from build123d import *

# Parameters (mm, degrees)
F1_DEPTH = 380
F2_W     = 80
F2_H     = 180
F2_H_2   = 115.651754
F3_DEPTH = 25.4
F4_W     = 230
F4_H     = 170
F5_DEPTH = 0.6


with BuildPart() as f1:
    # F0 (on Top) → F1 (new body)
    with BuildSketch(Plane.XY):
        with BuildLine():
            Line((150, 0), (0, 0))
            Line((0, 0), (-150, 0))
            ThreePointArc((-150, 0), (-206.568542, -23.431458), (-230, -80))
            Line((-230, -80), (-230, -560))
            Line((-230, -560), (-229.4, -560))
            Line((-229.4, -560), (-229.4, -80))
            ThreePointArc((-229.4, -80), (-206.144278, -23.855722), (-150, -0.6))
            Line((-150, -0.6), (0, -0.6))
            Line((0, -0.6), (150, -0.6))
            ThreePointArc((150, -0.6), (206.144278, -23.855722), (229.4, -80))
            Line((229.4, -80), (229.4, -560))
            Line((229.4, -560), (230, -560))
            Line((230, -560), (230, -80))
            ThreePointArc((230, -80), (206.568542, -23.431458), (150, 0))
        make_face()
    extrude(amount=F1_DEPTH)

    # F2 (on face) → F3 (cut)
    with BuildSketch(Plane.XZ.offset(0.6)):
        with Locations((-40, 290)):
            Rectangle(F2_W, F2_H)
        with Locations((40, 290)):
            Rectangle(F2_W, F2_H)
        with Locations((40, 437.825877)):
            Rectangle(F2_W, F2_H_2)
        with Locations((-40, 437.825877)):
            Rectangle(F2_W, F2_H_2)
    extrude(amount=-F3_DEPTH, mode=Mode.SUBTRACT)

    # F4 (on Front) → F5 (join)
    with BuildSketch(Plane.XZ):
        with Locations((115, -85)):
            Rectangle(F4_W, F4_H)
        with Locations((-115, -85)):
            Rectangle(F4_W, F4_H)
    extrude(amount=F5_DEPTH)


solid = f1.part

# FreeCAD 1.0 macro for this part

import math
import FreeCAD as App
import Part
import Sketcher

V = App.Vector
Q = App.Units.Quantity


def add_polygon(sketch, points):
    """Adds a closed chain of lines whose ends are joined by coincident constraints."""
    first, n = sketch.GeometryCount, len(points)
    for a, b in zip(points, points[1:] + points[:1]):
        sketch.addGeometry(Part.LineSegment(App.Vector(*a, 0), App.Vector(*b, 0)), False)
    for i in range(n):
        sketch.addConstraint(Sketcher.Constraint("Coincident", first + i, 2, first + (i + 1) % n, 1))

doc = App.newDocument("Part")
body = doc.addObject("PartDesign::Body", "Body")

sketch1 = doc.addObject("Sketcher::SketchObject", "Sketch")
body.addObject(sketch1)
sketch1.AttachmentSupport = (doc.XY_Plane, [""])
sketch1.MapMode = "FlatFace"
sketch1.addGeometry([
    Part.LineSegment(V(150, 0, 0), V(-150, 0, 0)),
    Part.ArcOfCircle(Part.Circle(V(-150, -80, 0), V(0, 0, 1), 80), math.radians(90), math.radians(180)),
    Part.LineSegment(V(-230, -80, 0), V(-230, -560, 0)),
    Part.LineSegment(V(-230, -560, 0), V(-229.4, -560, 0)),
    Part.LineSegment(V(-229.4, -560, 0), V(-229.4, -80, 0)),
    Part.ArcOfCircle(Part.Circle(V(-150, -80, 0), V(0, 0, 1), 79.4), math.radians(90), math.radians(180)),
    Part.LineSegment(V(-150, -0.6, 0), V(150, -0.6, 0)),
    Part.ArcOfCircle(Part.Circle(V(150, -80, 0), V(0, 0, 1), 79.4), math.radians(0), math.radians(90)),
    Part.LineSegment(V(229.4, -80, 0), V(229.4, -560, 0)),
    Part.LineSegment(V(229.4, -560, 0), V(230, -560, 0)),
    Part.LineSegment(V(230, -560, 0), V(230, -80, 0)),
    Part.ArcOfCircle(Part.Circle(V(150, -80, 0), V(0, 0, 1), 80), math.radians(0), math.radians(90)),
], False)
sketch1.addConstraint([
    Sketcher.Constraint("Tangent", 0, 2, 1, 1),
    Sketcher.Constraint("Tangent", 1, 2, 2, 1),
    Sketcher.Constraint("Coincident", 2, 2, 3, 1),
    Sketcher.Constraint("Coincident", 3, 2, 4, 1),
    Sketcher.Constraint("Tangent", 4, 2, 5, 2),
    Sketcher.Constraint("Tangent", 5, 1, 6, 1),
    Sketcher.Constraint("Tangent", 6, 2, 7, 2),
    Sketcher.Constraint("Tangent", 7, 1, 8, 1),
    Sketcher.Constraint("Coincident", 8, 2, 9, 1),
    Sketcher.Constraint("Coincident", 9, 2, 10, 1),
    Sketcher.Constraint("Tangent", 10, 2, 11, 1),
    Sketcher.Constraint("Tangent", 11, 2, 0, 1),
    Sketcher.Constraint("Horizontal", 0),
    Sketcher.Constraint("Vertical", 2),
    Sketcher.Constraint("Horizontal", 3),
    Sketcher.Constraint("Vertical", 4),
    Sketcher.Constraint("Horizontal", 6),
    Sketcher.Constraint("Vertical", 8),
    Sketcher.Constraint("Horizontal", 9),
    Sketcher.Constraint("Vertical", 10),
    Sketcher.Constraint("Coincident", 5, 3, 1, 3),
    Sketcher.Constraint("Coincident", 11, 3, 7, 3),
    Sketcher.Constraint("Equal", 5, 7),
    Sketcher.Constraint("Symmetric", 0, 2, 11, 2, -1, 1),
    Sketcher.Constraint("Horizontal", 3, 2, 8, 2),
    Sketcher.Constraint("Radius", 1, Q("80.000002 mm")),
    Sketcher.Constraint("Radius", 5, Q("79.400001 mm")),
    Sketcher.Constraint("DistanceX", 0, 2, 0, 1, Q("300 mm")),
    Sketcher.Constraint("DistanceY", 2, 2, 2, 1, Q("480 mm")),
])
pad1 = doc.addObject("PartDesign::Pad", "Pad")
body.addObject(pad1)
pad1.Profile = sketch1
pad1.Length = 380

sketch2 = doc.addObject("Sketcher::SketchObject", "Sketch001")
body.addObject(sketch2)
sketch2.AttachmentSupport = (doc.XZ_Plane, [""])
sketch2.MapMode = "FlatFace"
sketch2.AttachmentOffset = App.Placement(V(0, 0, 0.6), App.Rotation())
add_polygon(sketch2, [(-80, 200), (80, 200), (80, 496), (-80, 496)])
sketch2.addConstraint([
    Sketcher.Constraint("Horizontal", 0),
    Sketcher.Constraint("Vertical", 1),
    Sketcher.Constraint("Horizontal", 2),
    Sketcher.Constraint("Vertical", 3),
    Sketcher.Constraint("DistanceX", 0, 1, 0, 2, Q("160 mm")),
    Sketcher.Constraint("DistanceX", -1, 1, 0, 2, Q("80 mm")),
    Sketcher.Constraint("DistanceY", -1, 1, 0, 2, Q("200 mm")),
    Sketcher.Constraint("DistanceY", 1, 1, 1, 2, Q("295.651754 mm")),
])
pocket1 = doc.addObject("PartDesign::Pocket", "Pocket")
body.addObject(pocket1)
pocket1.Profile = sketch2
pocket1.Length = 25.4

sketch3 = doc.addObject("Sketcher::SketchObject", "Sketch002")
body.addObject(sketch3)
sketch3.AttachmentSupport = (doc.XZ_Plane, [""])
sketch3.MapMode = "FlatFace"
add_polygon(sketch3, [(230, -170), (230, 0), (-230, 0), (-230, -170)])
sketch3.addConstraint([
    Sketcher.Constraint("Vertical", 0),
    Sketcher.Constraint("Horizontal", 1),
    Sketcher.Constraint("Vertical", 2),
    Sketcher.Constraint("Horizontal", 3),
    Sketcher.Constraint("Symmetric", 0, 2, 1, 2, -1, 1),
    Sketcher.Constraint("DistanceX", 1, 2, 1, 1, Q("460 mm")),
    Sketcher.Constraint("DistanceY", 0, 1, 0, 2, Q("170 mm")),
])
pad2 = doc.addObject("PartDesign::Pad", "Pad001")
body.addObject(pad2)
pad2.Profile = sketch3
pad2.Length = 0.6

doc.recompute()
